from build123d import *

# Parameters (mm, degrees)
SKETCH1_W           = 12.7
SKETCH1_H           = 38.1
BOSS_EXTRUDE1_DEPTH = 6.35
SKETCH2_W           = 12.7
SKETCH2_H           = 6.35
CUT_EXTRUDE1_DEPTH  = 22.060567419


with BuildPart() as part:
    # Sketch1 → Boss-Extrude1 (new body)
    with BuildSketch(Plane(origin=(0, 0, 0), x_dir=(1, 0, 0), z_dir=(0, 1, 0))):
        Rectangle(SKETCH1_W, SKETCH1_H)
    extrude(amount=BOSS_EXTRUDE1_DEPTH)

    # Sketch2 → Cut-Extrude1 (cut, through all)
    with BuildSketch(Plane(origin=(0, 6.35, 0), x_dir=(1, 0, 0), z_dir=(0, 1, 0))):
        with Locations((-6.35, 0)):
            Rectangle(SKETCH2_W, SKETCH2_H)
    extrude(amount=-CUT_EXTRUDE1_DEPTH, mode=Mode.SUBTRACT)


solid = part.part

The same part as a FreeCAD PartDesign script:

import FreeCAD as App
import Part
import Sketcher
from FreeCAD import Vector
Q = App.Units.Quantity


def add_polygon(sketch, points):
    """Adds a closed chain of lines whose ends are joined by coincident constraints."""
    first, n = sketch.GeometryCount, len(points)
    for a, b in zip(points, points[1:] + points[:1]):
        sketch.addGeometry(Part.LineSegment(App.Vector(*a, 0), App.Vector(*b, 0)), False)
    for i in range(n):
        sketch.addConstraint(Sketcher.Constraint("Coincident", first + i, 2, first + (i + 1) % n, 1))

doc = App.newDocument("Part")
body = doc.addObject("PartDesign::Body", "Body")

# Sketch on XZ plane
sketch1 = body.newObject("Sketcher::SketchObject", "Sketch")
sketch1.AttachmentSupport = (doc.getObject("XZ_Plane"), [""])
sketch1.MapMode = "FlatFace"
add_polygon(sketch1, [(-6, -19), (-6, 19), (6, 19), (6, -19)])  # lines 0-3
sketch1.addConstraint(Sketcher.Constraint("Vertical", 0))
sketch1.addConstraint(Sketcher.Constraint("Horizontal", 1))
sketch1.addConstraint(Sketcher.Constraint("Vertical", 2))
sketch1.addConstraint(Sketcher.Constraint("Horizontal", 3))
sketch1.addConstraint(Sketcher.Constraint("Symmetric", 0, 2, 2, 2, -1, 1))
sketch1.addConstraint(Sketcher.Constraint("DistanceX", 1, 1, 1, 2, Q("0.5 in")))
sketch1.addConstraint(Sketcher.Constraint("DistanceY", 0, 1, 0, 2, Q("1.5 in")))
pad1 = body.newObject("PartDesign::Pad", "Pad")
pad1.Profile = sketch1
pad1.Length = Q("0.25 in")
pad1.Reversed = True

# Sketch on XZ plane
sketch2 = body.newObject("Sketcher::SketchObject", "Sketch001")
sketch2.AttachmentSupport = (doc.getObject("XZ_Plane"), [""])
sketch2.MapMode = "FlatFace"
sketch2.AttachmentOffset = App.Placement(Vector(0, 0, -0.25 * 25.4), App.Rotation())
add_polygon(sketch2, [(-13, -3), (-13, 3), (0, 3), (0, -3)])  # lines 0-3
sketch2.addConstraint(Sketcher.Constraint("Vertical", 0))
sketch2.addConstraint(Sketcher.Constraint("Horizontal", 1))
sketch2.addConstraint(Sketcher.Constraint("Vertical", 2))
sketch2.addConstraint(Sketcher.Constraint("Horizontal", 3))
sketch2.addConstraint(Sketcher.Constraint("Symmetric", 1, 2, 2, 2, -1, 1))
sketch2.addConstraint(Sketcher.Constraint("DistanceX", 1, 1, 1, 2, Q("0.5 in")))
sketch2.addConstraint(Sketcher.Constraint("DistanceY", 0, 1, 0, 2, Q("0.25 in")))
pocket1 = body.newObject("PartDesign::Pocket", "Pocket")
pocket1.Profile = sketch2
pocket1.Type = "ThroughAll"
pocket1.Reversed = True

doc.recompute()
